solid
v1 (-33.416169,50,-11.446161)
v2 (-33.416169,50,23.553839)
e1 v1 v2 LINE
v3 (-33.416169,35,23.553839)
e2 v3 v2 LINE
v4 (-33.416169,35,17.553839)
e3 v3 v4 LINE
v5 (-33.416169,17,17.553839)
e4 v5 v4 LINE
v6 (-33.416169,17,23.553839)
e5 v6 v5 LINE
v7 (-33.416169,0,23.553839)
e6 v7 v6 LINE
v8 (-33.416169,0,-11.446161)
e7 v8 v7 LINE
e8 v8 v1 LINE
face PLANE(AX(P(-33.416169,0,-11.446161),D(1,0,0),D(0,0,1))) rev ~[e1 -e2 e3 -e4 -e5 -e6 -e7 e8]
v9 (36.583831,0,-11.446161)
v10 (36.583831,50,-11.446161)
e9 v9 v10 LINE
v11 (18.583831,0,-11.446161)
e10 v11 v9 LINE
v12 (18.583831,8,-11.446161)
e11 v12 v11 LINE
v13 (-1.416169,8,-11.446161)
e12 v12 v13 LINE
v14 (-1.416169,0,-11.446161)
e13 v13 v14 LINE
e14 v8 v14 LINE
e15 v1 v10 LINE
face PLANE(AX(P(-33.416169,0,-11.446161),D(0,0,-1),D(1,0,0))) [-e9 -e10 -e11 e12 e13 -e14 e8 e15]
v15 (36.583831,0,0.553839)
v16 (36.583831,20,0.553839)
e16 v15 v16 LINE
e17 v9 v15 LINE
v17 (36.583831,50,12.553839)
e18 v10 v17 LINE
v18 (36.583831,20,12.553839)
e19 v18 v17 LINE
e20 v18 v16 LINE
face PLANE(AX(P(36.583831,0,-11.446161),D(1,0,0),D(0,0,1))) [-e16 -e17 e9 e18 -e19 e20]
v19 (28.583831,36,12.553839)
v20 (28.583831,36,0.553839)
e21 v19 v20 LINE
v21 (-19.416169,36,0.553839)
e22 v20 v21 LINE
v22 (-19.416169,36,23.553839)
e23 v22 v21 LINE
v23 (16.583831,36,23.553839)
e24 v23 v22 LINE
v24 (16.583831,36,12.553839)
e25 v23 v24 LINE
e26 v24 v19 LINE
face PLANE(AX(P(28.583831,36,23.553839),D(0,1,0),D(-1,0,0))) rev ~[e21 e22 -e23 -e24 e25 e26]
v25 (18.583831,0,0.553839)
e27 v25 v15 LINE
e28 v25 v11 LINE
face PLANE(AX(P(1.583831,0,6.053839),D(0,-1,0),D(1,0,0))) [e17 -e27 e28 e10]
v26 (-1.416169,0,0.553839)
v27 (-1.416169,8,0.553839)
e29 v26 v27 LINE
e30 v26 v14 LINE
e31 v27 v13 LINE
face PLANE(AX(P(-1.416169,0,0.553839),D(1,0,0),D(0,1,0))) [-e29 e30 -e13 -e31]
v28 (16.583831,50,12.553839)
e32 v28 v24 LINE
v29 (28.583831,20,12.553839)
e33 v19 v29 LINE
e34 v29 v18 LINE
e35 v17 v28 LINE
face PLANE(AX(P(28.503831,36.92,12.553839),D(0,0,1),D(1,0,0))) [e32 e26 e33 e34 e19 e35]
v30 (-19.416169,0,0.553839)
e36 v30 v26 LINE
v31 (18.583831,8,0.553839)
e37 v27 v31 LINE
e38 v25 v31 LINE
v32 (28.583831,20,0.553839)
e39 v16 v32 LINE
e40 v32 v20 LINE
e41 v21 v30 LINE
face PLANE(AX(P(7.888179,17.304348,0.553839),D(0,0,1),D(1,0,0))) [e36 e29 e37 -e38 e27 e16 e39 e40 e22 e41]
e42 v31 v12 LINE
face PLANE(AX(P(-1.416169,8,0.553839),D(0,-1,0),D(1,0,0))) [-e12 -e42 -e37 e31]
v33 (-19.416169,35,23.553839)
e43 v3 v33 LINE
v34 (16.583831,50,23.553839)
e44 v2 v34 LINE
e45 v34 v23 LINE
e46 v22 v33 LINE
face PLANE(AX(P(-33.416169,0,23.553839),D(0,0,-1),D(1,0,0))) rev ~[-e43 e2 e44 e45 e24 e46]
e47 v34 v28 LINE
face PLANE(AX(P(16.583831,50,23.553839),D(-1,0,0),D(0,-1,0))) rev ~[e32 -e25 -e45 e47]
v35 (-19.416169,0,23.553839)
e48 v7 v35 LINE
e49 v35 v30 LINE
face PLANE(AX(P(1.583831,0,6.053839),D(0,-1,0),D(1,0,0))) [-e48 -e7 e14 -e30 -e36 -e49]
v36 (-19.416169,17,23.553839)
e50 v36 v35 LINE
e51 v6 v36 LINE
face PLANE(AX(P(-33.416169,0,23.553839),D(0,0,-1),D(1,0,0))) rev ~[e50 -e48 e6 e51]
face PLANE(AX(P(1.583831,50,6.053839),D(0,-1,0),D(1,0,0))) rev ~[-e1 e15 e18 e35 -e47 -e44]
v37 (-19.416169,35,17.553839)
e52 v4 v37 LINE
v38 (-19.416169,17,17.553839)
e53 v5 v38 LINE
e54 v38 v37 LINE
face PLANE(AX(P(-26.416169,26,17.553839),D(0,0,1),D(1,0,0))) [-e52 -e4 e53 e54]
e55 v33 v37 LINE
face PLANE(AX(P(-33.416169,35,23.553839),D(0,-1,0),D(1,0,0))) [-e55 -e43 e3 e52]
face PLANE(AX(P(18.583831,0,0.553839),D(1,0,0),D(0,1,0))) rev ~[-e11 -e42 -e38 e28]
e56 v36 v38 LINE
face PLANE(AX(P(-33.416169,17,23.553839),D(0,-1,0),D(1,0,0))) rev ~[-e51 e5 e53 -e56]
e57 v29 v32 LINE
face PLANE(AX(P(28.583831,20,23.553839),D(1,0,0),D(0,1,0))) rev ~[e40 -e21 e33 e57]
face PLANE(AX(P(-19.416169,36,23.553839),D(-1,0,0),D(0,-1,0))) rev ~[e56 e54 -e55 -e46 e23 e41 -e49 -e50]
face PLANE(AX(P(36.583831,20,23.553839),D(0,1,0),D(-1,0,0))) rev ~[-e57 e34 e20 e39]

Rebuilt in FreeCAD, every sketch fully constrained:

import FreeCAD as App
import Part
import Sketcher


def add_polygon(sketch, points):
    """Adds a closed chain of lines whose ends are joined by coincident constraints."""
    first, n = sketch.GeometryCount, len(points)
    for a, b in zip(points, points[1:] + points[:1]):
        sketch.addGeometry(Part.LineSegment(App.Vector(*a, 0), App.Vector(*b, 0)), False)
    for i in range(n):
        sketch.addConstraint(Sketcher.Constraint("Coincident", first + i, 2, first + (i + 1) % n, 1))

doc = App.newDocument("Part")
params = doc.addObject("Spreadsheet::Sheet", "Params")
for row, (alias, value) in enumerate([
    ("sketch1_width", "70 mm"),
    ("sketch1_height", "35 mm"),
    ("pad1_length", "50 mm"),
    ("sketch2_width", "56 mm"),
    ("sketch2_width2", "8 mm"),
    ("sketch2_height", "20 mm"),
    ("sketch2_height2", "16 mm"),
    ("pocket1_length", "23 mm"),
    ("sketch3_width", "12 mm"),
    ("sketch3_width2", "8 mm"),
    ("sketch3_height", "16 mm"),
    ("sketch3_height2", "30 mm"),
    ("pocket2_length", "11 mm"),
    ("sketch4_width", "14 mm"),
    ("sketch4_height", "18 mm"),
    ("pocket3_length", "6 mm"),
    ("sketch5_width", "20 mm"),
    ("sketch5_height", "8 mm"),
    ("pocket4_length", "25 mm"),
], start=1):
    params.set(f"A{row}", alias)
    params.set(f"B{row}", "=" + value)
    params.setAlias(f"B{row}", alias)

body = doc.addObject("PartDesign::Body", "Body")

# Sketch on XZ plane
sketch1 = body.newObject("Sketcher::SketchObject", "Sketch")
sketch1.AttachmentSupport = (doc.getObject("XZ_Plane"), [""])
sketch1.MapMode = "FlatFace"
add_polygon(sketch1, [(-33.416169, 23.553839), (-33.416169, -11.446161), (36.583831, -11.446161), (36.583831, 23.553839)])  # lines 0-3
sketch1.addConstraint([
    Sketcher.Constraint("Vertical", 0),
    Sketcher.Constraint("Horizontal", 1),
    Sketcher.Constraint("Vertical", 2),
    Sketcher.Constraint("Horizontal", 3),
    Sketcher.Constraint("DistanceX", 1, 1, 1, 2, 70.0),
    Sketcher.Constraint("DistanceY", 0, 2, 0, 1, 35.0),
    Sketcher.Constraint("DistanceX", 0, 2, -1, 1, 33.416169),
    Sketcher.Constraint("DistanceY", 0, 2, -1, 1, 11.446161),
])
sketch1.setExpression("Constraints[8]", "Params.sketch1_width")
sketch1.setExpression("Constraints[9]", "Params.sketch1_height")
pad1 = body.newObject("PartDesign::Pad", "Pad")
pad1.Profile = sketch1
pad1.setExpression("Length", "Params.pad1_length")
pad1.Reversed = True

# Sketch on XY plane
sketch2 = body.newObject("Sketcher::SketchObject", "Sketch001")
sketch2.AttachmentSupport = (doc.getObject("XY_Plane"), [""])
sketch2.MapMode = "FlatFace"
sketch2.AttachmentOffset = App.Placement(App.Vector(0, 0, 23.553839), App.Rotation())
add_polygon(sketch2, [(-19.416169, 0), (36.583831, 0), (36.583831, 20), (28.583831, 20), (28.583831, 36), (-19.416169, 36)])  # lines 0-5
sketch2.addConstraint([
    Sketcher.Constraint("Horizontal", 0),
    Sketcher.Constraint("Vertical", 1),
    Sketcher.Constraint("Horizontal", 2),
    Sketcher.Constraint("Vertical", 3),
    Sketcher.Constraint("Horizontal", 4),
    Sketcher.Constraint("Vertical", 5),
    Sketcher.Constraint("PointOnObject", 0, 2, -1),
    Sketcher.Constraint("DistanceX", 0, 1, 0, 2, 56.0),
    Sketcher.Constraint("DistanceX", 2, 2, 2, 1, 8.0),
    Sketcher.Constraint("DistanceY", 1, 1, 1, 2, 20.0),
    Sketcher.Constraint("DistanceY", 3, 1, 3, 2, 16.0),
    Sketcher.Constraint("DistanceX", -1, 1, 0, 2, 36.583831),
])
sketch2.setExpression("Constraints[13]", "Params.sketch2_width")
sketch2.setExpression("Constraints[14]", "Params.sketch2_width2")
sketch2.setExpression("Constraints[15]", "Params.sketch2_height")
sketch2.setExpression("Constraints[16]", "Params.sketch2_height2")
pocket1 = body.newObject("PartDesign::Pocket", "Pocket")
pocket1.Profile = sketch2
pocket1.setExpression("Length", "Params.pocket1_length")

# Sketch on XY plane
sketch3 = body.newObject("Sketcher::SketchObject", "Sketch002")
sketch3.AttachmentSupport = (doc.getObject("XY_Plane"), [""])
sketch3.MapMode = "FlatFace"
sketch3.AttachmentOffset = App.Placement(App.Vector(0, 0, 23.553839), App.Rotation())
add_polygon(sketch3, [(16.583831, 36), (28.583831, 36), (28.583831, 20), (36.583831, 20), (36.583831, 50), (16.583831, 50)])  # lines 0-5
sketch3.addConstraint([
    Sketcher.Constraint("Horizontal", 0),
    Sketcher.Constraint("Vertical", 1),
    Sketcher.Constraint("Horizontal", 2),
    Sketcher.Constraint("Vertical", 3),
    Sketcher.Constraint("Horizontal", 4),
    Sketcher.Constraint("Vertical", 5),
    Sketcher.Constraint("DistanceX", 0, 1, 0, 2, 12.0),
    Sketcher.Constraint("DistanceX", 2, 1, 2, 2, 8.0),
    Sketcher.Constraint("DistanceY", 1, 2, 1, 1, 16.0),
    Sketcher.Constraint("DistanceY", 3, 1, 3, 2, 30.0),
    Sketcher.Constraint("DistanceY", -1, 1, 0, 2, 36.0),
    Sketcher.Constraint("DistanceX", -1, 1, 0, 2, 28.583831),
])
sketch3.setExpression("Constraints[12]", "Params.sketch3_width")
sketch3.setExpression("Constraints[13]", "Params.sketch3_width2")
sketch3.setExpression("Constraints[14]", "Params.sketch3_height")
sketch3.setExpression("Constraints[15]", "Params.sketch3_height2")
pocket2 = body.newObject("PartDesign::Pocket", "Pocket001")
pocket2.Profile = sketch3
pocket2.setExpression("Length", "Params.pocket2_length")

# Sketch on XY plane
sketch4 = body.newObject("Sketcher::SketchObject", "Sketch003")
sketch4.AttachmentSupport = (doc.getObject("XY_Plane"), [""])
sketch4.MapMode = "FlatFace"
sketch4.AttachmentOffset = App.Placement(App.Vector(0, 0, 23.553839), App.Rotation())
add_polygon(sketch4, [(-33.416169, 35), (-33.416169, 17), (-19.416169, 17), (-19.416169, 35)])  # lines 0-3
sketch4.addConstraint([
    Sketcher.Constraint("Vertical", 0),
    Sketcher.Constraint("Horizontal", 1),
    Sketcher.Constraint("Vertical", 2),
    Sketcher.Constraint("Horizontal", 3),
    Sketcher.Constraint("DistanceX", 1, 1, 1, 2, 14.0),
    Sketcher.Constraint("DistanceY", 0, 2, 0, 1, 18.0),
    Sketcher.Constraint("DistanceY", -1, 1, 0, 2, 17.0),
    Sketcher.Constraint("DistanceX", 0, 2, -1, 1, 33.416169),
])
sketch4.setExpression("Constraints[8]", "Params.sketch4_width")
sketch4.setExpression("Constraints[9]", "Params.sketch4_height")
pocket3 = body.newObject("PartDesign::Pocket", "Pocket002")
pocket3.Profile = sketch4
pocket3.setExpression("Length", "Params.pocket3_length")

# Sketch on XY plane
sketch5 = body.newObject("Sketcher::SketchObject", "Sketch004")
sketch5.AttachmentSupport = (doc.getObject("XY_Plane"), [""])
sketch5.MapMode = "FlatFace"
sketch5.AttachmentOffset = App.Placement(App.Vector(0, 0, 0.553839), App.Rotation())
add_polygon(sketch5, [(-1.416169, 8), (-1.416169, 0), (18.583831, 0), (18.583831, 8)])  # lines 0-3
sketch5.addConstraint([
    Sketcher.Constraint("Vertical", 0),
    Sketcher.Constraint("Horizontal", 1),
    Sketcher.Constraint("Vertical", 2),
    Sketcher.Constraint("Horizontal", 3),
    Sketcher.Constraint("PointOnObject", 0, 2, -1),
    Sketcher.Constraint("DistanceX", 1, 1, 1, 2, 20.0),
    Sketcher.Constraint("DistanceY", 0, 2, 0, 1, 8.0),
    Sketcher.Constraint("DistanceX", 0, 2, -1, 1, 1.416169),
])
sketch5.setExpression("Constraints[9]", "Params.sketch5_width")
sketch5.setExpression("Constraints[10]", "Params.sketch5_height")
pocket4 = body.newObject("PartDesign::Pocket", "Pocket003")
pocket4.Profile = sketch5
pocket4.setExpression("Length", "Params.pocket4_length")

doc.recompute()
